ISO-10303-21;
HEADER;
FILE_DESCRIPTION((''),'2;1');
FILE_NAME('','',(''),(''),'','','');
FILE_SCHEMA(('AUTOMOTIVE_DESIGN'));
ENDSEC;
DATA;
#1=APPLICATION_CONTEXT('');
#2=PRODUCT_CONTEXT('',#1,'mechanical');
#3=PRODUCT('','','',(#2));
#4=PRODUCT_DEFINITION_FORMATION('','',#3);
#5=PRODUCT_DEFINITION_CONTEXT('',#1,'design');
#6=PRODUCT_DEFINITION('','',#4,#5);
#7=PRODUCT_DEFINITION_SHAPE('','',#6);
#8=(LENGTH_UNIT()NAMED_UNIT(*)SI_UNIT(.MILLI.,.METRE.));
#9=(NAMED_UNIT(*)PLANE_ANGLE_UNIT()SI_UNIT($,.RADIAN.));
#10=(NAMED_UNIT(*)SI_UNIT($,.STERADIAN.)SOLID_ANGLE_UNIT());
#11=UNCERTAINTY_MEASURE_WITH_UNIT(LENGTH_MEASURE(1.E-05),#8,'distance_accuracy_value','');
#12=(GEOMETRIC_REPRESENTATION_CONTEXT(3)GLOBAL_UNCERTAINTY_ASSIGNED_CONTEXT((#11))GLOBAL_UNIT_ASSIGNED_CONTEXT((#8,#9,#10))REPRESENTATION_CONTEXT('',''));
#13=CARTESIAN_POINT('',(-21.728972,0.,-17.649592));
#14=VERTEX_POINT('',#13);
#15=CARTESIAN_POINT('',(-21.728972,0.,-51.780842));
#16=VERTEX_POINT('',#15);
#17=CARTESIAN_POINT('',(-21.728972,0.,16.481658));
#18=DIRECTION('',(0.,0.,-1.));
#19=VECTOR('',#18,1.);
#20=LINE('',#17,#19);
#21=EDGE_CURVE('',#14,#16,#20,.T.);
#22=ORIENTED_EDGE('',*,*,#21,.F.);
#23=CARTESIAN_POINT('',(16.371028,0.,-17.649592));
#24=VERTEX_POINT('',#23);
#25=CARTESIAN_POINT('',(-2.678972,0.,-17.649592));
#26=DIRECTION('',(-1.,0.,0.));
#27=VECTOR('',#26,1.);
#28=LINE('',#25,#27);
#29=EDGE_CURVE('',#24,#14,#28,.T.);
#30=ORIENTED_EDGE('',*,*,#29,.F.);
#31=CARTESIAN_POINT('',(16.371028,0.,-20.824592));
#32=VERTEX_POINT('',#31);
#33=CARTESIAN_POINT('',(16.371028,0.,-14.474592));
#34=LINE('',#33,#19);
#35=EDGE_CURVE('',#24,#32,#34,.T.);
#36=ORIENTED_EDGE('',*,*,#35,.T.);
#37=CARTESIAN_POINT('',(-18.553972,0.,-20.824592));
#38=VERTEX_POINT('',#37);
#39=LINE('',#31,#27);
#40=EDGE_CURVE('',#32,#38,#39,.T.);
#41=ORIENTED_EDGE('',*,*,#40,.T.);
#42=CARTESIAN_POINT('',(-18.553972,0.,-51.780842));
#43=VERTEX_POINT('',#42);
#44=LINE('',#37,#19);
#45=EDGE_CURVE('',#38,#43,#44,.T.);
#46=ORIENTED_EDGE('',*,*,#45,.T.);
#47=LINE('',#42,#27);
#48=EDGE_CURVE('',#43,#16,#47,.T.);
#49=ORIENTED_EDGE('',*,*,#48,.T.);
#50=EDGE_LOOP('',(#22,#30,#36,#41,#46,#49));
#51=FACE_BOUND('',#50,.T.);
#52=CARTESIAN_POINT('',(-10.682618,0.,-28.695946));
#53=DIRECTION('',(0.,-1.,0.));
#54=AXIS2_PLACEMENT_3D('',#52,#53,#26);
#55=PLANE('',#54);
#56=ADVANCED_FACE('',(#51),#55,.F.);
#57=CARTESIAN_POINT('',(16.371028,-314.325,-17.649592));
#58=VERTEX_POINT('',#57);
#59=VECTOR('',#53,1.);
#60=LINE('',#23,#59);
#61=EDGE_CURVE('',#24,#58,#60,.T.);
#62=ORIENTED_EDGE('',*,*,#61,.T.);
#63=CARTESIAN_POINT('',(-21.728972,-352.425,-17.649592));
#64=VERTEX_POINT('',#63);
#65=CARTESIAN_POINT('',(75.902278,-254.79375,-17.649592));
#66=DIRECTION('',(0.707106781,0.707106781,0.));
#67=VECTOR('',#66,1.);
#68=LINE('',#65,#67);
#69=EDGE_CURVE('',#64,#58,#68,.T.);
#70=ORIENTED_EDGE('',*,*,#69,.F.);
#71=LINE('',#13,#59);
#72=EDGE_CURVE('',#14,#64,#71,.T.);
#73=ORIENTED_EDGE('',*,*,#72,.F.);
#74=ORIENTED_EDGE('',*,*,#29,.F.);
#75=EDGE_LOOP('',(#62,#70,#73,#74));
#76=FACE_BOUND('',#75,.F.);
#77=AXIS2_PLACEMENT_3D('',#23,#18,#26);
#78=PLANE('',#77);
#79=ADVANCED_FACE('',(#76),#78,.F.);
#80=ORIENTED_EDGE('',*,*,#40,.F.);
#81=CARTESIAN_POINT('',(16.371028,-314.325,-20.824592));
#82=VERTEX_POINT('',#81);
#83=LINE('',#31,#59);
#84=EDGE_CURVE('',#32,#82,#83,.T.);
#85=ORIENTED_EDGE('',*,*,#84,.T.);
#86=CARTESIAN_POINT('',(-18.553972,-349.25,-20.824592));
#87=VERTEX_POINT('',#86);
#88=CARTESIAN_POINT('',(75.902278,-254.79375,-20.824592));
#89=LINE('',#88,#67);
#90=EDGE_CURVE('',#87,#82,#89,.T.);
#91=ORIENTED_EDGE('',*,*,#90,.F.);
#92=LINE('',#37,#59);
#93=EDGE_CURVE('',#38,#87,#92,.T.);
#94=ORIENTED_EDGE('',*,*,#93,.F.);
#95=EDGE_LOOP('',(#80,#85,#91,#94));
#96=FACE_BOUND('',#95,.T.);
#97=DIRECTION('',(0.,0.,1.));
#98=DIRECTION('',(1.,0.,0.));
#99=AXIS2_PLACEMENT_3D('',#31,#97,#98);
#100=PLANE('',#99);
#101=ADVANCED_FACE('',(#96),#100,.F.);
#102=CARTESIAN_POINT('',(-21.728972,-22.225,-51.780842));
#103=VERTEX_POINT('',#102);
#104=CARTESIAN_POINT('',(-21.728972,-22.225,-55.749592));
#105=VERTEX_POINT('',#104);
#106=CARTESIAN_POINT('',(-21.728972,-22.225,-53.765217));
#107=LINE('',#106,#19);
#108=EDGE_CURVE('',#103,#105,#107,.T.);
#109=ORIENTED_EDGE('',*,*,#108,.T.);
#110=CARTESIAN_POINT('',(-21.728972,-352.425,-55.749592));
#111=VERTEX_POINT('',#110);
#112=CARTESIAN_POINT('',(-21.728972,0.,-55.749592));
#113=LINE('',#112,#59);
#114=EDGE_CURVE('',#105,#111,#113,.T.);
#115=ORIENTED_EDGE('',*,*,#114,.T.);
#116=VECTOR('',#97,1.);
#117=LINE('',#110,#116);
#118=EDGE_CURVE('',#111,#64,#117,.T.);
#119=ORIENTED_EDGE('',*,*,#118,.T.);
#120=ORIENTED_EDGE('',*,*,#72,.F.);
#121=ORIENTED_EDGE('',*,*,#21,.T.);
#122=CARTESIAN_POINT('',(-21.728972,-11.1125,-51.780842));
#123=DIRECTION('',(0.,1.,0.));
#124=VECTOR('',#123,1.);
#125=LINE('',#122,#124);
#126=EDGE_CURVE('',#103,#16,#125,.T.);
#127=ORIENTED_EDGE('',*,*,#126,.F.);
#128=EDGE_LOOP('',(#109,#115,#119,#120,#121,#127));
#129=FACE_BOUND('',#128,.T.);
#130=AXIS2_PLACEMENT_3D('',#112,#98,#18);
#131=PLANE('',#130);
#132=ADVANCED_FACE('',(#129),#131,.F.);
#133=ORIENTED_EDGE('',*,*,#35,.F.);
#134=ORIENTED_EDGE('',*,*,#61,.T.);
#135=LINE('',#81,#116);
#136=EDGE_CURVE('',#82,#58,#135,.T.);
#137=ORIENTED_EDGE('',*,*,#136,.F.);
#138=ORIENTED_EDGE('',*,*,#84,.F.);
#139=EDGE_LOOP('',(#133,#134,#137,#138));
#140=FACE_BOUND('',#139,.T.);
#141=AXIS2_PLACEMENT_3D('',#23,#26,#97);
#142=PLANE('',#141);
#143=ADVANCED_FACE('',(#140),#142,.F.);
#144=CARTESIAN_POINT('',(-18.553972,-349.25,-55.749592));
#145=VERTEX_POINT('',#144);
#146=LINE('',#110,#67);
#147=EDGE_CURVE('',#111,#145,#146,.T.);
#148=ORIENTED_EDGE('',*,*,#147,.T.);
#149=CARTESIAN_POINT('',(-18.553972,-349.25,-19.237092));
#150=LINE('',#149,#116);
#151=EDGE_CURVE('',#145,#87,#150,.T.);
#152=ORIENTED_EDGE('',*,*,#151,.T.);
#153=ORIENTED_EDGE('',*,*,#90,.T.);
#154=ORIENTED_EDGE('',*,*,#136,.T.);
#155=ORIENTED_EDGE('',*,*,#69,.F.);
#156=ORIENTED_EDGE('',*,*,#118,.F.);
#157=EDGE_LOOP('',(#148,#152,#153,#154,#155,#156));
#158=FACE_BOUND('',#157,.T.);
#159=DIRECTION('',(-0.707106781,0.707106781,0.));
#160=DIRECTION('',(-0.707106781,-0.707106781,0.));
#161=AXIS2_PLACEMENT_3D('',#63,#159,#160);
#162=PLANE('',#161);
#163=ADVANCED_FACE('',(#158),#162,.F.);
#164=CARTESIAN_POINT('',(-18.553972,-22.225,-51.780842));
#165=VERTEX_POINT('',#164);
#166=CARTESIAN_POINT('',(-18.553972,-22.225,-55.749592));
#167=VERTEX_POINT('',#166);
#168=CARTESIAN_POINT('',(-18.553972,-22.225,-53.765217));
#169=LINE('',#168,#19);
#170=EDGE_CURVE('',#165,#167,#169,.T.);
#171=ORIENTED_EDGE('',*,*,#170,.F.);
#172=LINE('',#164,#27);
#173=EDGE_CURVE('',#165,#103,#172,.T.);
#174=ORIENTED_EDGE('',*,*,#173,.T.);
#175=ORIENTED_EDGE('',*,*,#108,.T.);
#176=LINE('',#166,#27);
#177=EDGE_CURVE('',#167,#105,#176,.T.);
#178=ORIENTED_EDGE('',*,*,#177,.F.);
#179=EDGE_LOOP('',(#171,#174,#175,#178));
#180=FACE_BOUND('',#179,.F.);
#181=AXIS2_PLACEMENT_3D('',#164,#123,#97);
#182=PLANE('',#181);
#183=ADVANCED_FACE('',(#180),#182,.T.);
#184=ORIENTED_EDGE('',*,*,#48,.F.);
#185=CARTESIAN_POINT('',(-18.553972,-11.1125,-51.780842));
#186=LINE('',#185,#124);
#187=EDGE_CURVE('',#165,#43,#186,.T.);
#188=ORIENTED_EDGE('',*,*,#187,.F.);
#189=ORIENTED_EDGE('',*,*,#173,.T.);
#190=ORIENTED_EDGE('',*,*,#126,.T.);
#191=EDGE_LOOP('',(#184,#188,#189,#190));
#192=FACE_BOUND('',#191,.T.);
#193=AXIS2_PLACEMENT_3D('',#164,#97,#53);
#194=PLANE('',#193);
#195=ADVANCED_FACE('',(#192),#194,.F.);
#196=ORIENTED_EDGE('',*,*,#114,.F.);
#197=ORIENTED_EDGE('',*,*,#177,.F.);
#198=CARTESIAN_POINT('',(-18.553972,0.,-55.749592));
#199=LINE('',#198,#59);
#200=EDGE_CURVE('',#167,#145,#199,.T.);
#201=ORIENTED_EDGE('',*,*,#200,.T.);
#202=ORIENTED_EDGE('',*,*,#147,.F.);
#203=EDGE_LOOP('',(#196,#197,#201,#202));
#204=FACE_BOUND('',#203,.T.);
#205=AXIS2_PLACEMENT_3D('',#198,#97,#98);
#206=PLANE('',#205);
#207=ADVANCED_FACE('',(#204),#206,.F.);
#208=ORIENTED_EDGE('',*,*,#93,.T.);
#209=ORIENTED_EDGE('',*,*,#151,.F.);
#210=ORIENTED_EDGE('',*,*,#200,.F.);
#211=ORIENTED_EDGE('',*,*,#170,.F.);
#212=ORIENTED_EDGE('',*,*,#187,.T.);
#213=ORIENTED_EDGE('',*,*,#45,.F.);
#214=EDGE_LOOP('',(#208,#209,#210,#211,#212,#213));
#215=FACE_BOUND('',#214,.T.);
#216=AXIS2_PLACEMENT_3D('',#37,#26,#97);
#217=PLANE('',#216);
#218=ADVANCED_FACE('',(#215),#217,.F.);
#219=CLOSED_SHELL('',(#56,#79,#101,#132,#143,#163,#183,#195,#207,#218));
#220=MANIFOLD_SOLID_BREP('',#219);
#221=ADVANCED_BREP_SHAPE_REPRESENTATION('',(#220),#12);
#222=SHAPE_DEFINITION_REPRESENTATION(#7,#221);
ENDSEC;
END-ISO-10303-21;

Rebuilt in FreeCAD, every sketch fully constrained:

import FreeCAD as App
import Part
import Sketcher

V = App.Vector
Q = App.Units.Quantity

doc = App.newDocument("Part")
body = doc.addObject("PartDesign::Body", "Body")

sketch1 = doc.addObject("Sketcher::SketchObject", "Sketch")
body.addObject(sketch1)
sketch1.AttachmentSupport = (doc.XZ_Plane, [""])
sketch1.MapMode = "FlatFace"
sketch1.addGeometry([
    Part.LineSegment(V(-18.6, 20.5, 0), V(-21.7, 20.5, 0)),
    Part.LineSegment(V(-21.7, 20.5, 0), V(-21.7, -17.6, 0)),
    Part.LineSegment(V(-21.7, -17.6, 0), V(16.4, -17.6, 0)),
    Part.LineSegment(V(16.4, -17.6, 0), V(16.4, -14.5, 0)),
    Part.LineSegment(V(16.4, -14.5, 0), V(-18.6, -14.5, 0)),
    Part.LineSegment(V(-18.6, -14.5, 0), V(-18.6, 20.5, 0)),
], False)
sketch1.addConstraint([
    Sketcher.Constraint("Coincident", 0, 2, 1, 1),
    Sketcher.Constraint("Coincident", 1, 2, 2, 1),
    Sketcher.Constraint("Coincident", 2, 2, 3, 1),
    Sketcher.Constraint("Coincident", 3, 2, 4, 1),
    Sketcher.Constraint("Coincident", 4, 2, 5, 1),
    Sketcher.Constraint("Coincident", 5, 2, 0, 1),
    Sketcher.Constraint("Horizontal", 0),
    Sketcher.Constraint("Vertical", 1),
    Sketcher.Constraint("Horizontal", 2),
    Sketcher.Constraint("Vertical", 3),
    Sketcher.Constraint("Horizontal", 4),
    Sketcher.Constraint("Vertical", 5),
    Sketcher.Constraint("Equal", 2, 1),
    Sketcher.Constraint("Equal", 0, 3),
    Sketcher.Constraint("DistanceX", 2, 1, 2, 2, Q("1.5 in")),
    Sketcher.Constraint("DistanceX", 0, 2, 0, 1, Q("0.125 in")),
    Sketcher.Constraint("DistanceX", 0, 2, -1, 1, Q("21.728972 mm")),
    Sketcher.Constraint("DistanceY", 1, 2, -1, 1, Q("17.649592 mm")),
])
pad1 = doc.addObject("PartDesign::Pad", "Pad")
body.addObject(pad1)
pad1.Profile = sketch1
pad1.Length = Q("13.875 in")

sketch2 = doc.addObject("Sketcher::SketchObject", "Sketch001")
body.addObject(sketch2)
sketch2.AttachmentSupport = (doc.YZ_Plane, [""])
sketch2.MapMode = "FlatFace"
sketch2.AttachmentOffset = App.Placement(V(0, 0, -18.553972), App.Rotation())
sketch2.addGeometry([
    Part.LineSegment(V(-22.2, 20.5, 0), V(-22.2, 16.5, 0)),
    Part.LineSegment(V(-22.2, 16.5, 0), V(0, 16.5, 0)),
    Part.LineSegment(V(0, 16.5, 0), V(0, 20.5, 0)),
    Part.LineSegment(V(0, 20.5, 0), V(-22.2, 20.5, 0)),
], False)
sketch2.addConstraint([
    Sketcher.Constraint("Coincident", 0, 2, 1, 1),
    Sketcher.Constraint("Coincident", 1, 2, 2, 1),
    Sketcher.Constraint("Coincident", 2, 2, 3, 1),
    Sketcher.Constraint("Coincident", 3, 2, 0, 1),
    Sketcher.Constraint("Vertical", 0),
    Sketcher.Constraint("Horizontal", 1),
    Sketcher.Constraint("Vertical", 2),
    Sketcher.Constraint("Horizontal", 3),
    Sketcher.Constraint("PointOnObject", 1, 2, -2),
    Sketcher.Constraint("DistanceX", 1, 1, 1, 2, Q("0.875 in")),
    Sketcher.Constraint("DistanceY", 0, 2, 0, 1, Q("0.15625 in")),
    Sketcher.Constraint("DistanceY", -1, 1, 0, 2, Q("16.481658 mm")),
])
pocket1 = doc.addObject("PartDesign::Pocket", "Pocket")
body.addObject(pocket1)
pocket1.Profile = sketch2
pocket1.Length = Q("1 in")

sketch3 = doc.addObject("Sketcher::SketchObject", "Sketch002")
body.addObject(sketch3)
sketch3.AttachmentSupport = (doc.XY_Plane, [""])
sketch3.MapMode = "FlatFace"
sketch3.AttachmentOffset = App.Placement(V(0, 0, -17.649592), App.Rotation())
sketch3.addGeometry([
    Part.LineSegment(V(16, -352, 0), V(-22, -352, 0)),
    Part.LineSegment(V(-22, -352, 0), V(16, -314, 0)),
    Part.LineSegment(V(16, -314, 0), V(16, -352, 0)),
], False)
sketch3.addConstraint([
    Sketcher.Constraint("Coincident", 0, 2, 1, 1),
    Sketcher.Constraint("Coincident", 1, 2, 2, 1),
    Sketcher.Constraint("Coincident", 2, 2, 0, 1),
    Sketcher.Constraint("Horizontal", 0),
    Sketcher.Constraint("Vertical", 2),
    Sketcher.Constraint("Equal", 0, 2),
    Sketcher.Constraint("DistanceX", 0, 2, 0, 1, Q("1.5 in")),
    Sketcher.Constraint("DistanceY", 0, 2, -1, 1, Q("13.875 in")),
    Sketcher.Constraint("DistanceX", 0, 2, -1, 1, Q("21.728972 mm")),
])
pocket2 = doc.addObject("PartDesign::Pocket", "Pocket001")
body.addObject(pocket2)
pocket2.Profile = sketch3
pocket2.Length = Q("1.5 in")
pocket2.Reversed = True
body2 = doc.addObject("PartDesign::Body", "Body001")
doc.recompute()

body2.BaseFeature = body
doc.recompute()

mirroring = doc.addObject("Part::Mirroring", "Mirroring")
mirroring.Source = body
mirroring.Base = V(-3.041829, -166.868929, -17.649592)
mirroring.Normal = V(0, 0, -1)
body3 = doc.addObject("PartDesign::Body", "Body002")
body3.BaseFeature = mirroring
boolean = doc.addObject("PartDesign::Boolean", "Boolean")
body2.addObject(boolean)
boolean.Type = "Fuse"
boolean.addObjects([body3])
doc.recompute()

sketch4 = doc.addObject("Sketcher::SketchObject", "Sketch003")
body2.addObject(sketch4)
sketch4.AttachmentSupport = (doc.getObject("XZ_Plane001"), [""])
sketch4.MapMode = "FlatFace"
sketch4.addGeometry([
    Part.LineSegment(V(16, 20, 0), V(16, -18, 0)),
    Part.LineSegment(V(16, -18, 0), V(-22, -18, 0)),
    Part.LineSegment(V(-22, -18, 0), V(-22, 20, 0)),
    Part.LineSegment(V(-22, 20, 0), V(16, 20, 0)),
], False)
sketch4.addConstraint([
    Sketcher.Constraint("Coincident", 0, 2, 1, 1),
    Sketcher.Constraint("Coincident", 1, 2, 2, 1),
    Sketcher.Constraint("Coincident", 2, 2, 3, 1),
    Sketcher.Constraint("Coincident", 3, 2, 0, 1),
    Sketcher.Constraint("Vertical", 0),
    Sketcher.Constraint("Horizontal", 1),
    Sketcher.Constraint("Vertical", 2),
    Sketcher.Constraint("Horizontal", 3),
    Sketcher.Constraint("Equal", 3, 0),
    Sketcher.Constraint("DistanceX", 1, 2, 1, 1, Q("1.5 in")),
    Sketcher.Constraint("DistanceY", 0, 2, -1, 1, Q("17.649592 mm")),
    Sketcher.Constraint("DistanceX", 1, 2, -1, 1, Q("21.728972 mm")),
])
pocket3 = doc.addObject("PartDesign::Pocket", "Pocket002")
body2.addObject(pocket3)
pocket3.Profile = sketch4
pocket3.Type = "ThroughAll"
pocket3.Reversed = True
mirroring.Visibility = False

doc.recompute()
